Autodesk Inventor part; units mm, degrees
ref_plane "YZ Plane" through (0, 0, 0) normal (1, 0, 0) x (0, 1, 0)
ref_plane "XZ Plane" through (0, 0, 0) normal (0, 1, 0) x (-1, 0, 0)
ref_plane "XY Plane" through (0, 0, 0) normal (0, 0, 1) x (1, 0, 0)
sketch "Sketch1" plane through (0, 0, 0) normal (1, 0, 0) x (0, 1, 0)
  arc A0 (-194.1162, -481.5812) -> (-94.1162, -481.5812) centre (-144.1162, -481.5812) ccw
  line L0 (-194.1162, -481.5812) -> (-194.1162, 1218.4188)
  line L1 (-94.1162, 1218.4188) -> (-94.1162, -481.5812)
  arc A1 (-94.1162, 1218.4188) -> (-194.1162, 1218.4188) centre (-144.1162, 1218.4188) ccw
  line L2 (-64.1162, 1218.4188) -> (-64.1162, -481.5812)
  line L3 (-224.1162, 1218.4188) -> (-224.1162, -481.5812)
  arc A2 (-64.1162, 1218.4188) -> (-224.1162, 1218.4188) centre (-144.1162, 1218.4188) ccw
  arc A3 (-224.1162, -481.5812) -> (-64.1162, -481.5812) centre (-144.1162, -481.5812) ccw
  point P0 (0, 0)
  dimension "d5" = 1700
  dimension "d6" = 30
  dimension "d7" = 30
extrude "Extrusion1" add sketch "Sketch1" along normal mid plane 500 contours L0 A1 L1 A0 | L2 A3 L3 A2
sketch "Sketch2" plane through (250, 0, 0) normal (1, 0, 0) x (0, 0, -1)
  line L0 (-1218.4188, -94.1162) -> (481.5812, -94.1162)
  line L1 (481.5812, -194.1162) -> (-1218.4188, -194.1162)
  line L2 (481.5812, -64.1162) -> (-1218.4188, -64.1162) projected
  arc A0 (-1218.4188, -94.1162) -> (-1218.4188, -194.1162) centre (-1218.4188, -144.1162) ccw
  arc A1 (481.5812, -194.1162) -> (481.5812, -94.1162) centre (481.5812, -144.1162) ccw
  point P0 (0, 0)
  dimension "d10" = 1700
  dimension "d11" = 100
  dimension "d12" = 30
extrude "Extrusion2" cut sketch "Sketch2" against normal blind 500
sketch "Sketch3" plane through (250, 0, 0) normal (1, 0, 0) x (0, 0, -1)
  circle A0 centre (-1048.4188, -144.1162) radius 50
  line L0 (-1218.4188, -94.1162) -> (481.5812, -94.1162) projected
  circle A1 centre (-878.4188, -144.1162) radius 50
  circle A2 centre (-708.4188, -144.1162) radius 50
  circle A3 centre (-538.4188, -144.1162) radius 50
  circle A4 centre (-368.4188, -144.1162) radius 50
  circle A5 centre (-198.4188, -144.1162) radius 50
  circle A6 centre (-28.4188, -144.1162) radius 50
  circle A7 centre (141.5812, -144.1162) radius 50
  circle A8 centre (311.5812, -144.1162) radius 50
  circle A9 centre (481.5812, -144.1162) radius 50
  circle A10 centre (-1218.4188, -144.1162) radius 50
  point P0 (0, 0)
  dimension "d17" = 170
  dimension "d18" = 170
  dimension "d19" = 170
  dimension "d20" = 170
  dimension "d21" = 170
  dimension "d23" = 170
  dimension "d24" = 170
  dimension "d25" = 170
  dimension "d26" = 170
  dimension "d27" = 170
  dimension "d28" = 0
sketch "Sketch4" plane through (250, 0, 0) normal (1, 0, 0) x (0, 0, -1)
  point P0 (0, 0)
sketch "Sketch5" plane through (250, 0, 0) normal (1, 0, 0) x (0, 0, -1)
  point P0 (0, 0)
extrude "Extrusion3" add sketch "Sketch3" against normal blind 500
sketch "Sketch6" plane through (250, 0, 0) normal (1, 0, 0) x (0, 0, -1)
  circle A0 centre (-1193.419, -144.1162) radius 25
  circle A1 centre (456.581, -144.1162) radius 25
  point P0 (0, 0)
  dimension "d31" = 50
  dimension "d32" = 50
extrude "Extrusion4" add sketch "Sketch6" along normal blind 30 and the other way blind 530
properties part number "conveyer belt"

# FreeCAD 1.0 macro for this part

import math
import FreeCAD as App
import Part
import Sketcher
Q = App.Units.Quantity

doc = App.newDocument("Part")
body = doc.addObject("PartDesign::Body", "Body")
body.AllowCompound = True

# Sketch on YZ plane
sketch1 = body.newObject("Sketcher::SketchObject", "Sketch")
sketch1.AttachmentSupport = (doc.getObject("YZ_Plane"), [""])
sketch1.MapMode = "FlatFace"
sketch1.addGeometry(Part.LineSegment(App.Vector(-64.1162, -481.5812, 0), App.Vector(-64.1162, 1218.4188, 0)), False)
sketch1.addGeometry(Part.ArcOfCircle(Part.Circle(App.Vector(-144.1162, 1218.4188, 0), App.Vector(0, 0, 1), 80), math.radians(0), math.radians(180)), False)
sketch1.addGeometry(Part.LineSegment(App.Vector(-224.1162, 1218.4188, 0), App.Vector(-224.1162, -481.5812, 0)), False)
sketch1.addGeometry(Part.ArcOfCircle(Part.Circle(App.Vector(-144.1162, -481.5812, 0), App.Vector(0, 0, 1), 80), math.radians(180), math.radians(360)), False)
sketch1.addConstraint(Sketcher.Constraint("Tangent", 0, 2, 1, 1))
sketch1.addConstraint(Sketcher.Constraint("Tangent", 1, 2, 2, 1))
sketch1.addConstraint(Sketcher.Constraint("Tangent", 2, 2, 3, 1))
sketch1.addConstraint(Sketcher.Constraint("Tangent", 3, 2, 0, 1))
sketch1.addConstraint(Sketcher.Constraint("Vertical", 0))
sketch1.addConstraint(Sketcher.Constraint("Vertical", 2))
sketch1.addConstraint(Sketcher.Constraint("DistanceY", 0, 1, 0, 2, Q("1700 mm")))
sketch1.addConstraint(Sketcher.Constraint("Radius", 1, Q("80 mm")))
sketch1.addConstraint(Sketcher.Constraint("DistanceX", 1, 3, -1, 1, Q("144.1162 mm")))
sketch1.addConstraint(Sketcher.Constraint("DistanceY", -1, 1, 1, 3, Q("1218.4188 mm")))
pad1 = body.newObject("PartDesign::Pad", "Pad")
pad1.Profile = sketch1
pad1.Length = 500
pad1.Midplane = True

# Sketch on YZ plane
sketch2 = body.newObject("Sketcher::SketchObject", "Sketch001")
sketch2.AttachmentSupport = (doc.getObject("YZ_Plane"), [""])
sketch2.MapMode = "FlatFace"
sketch2.AttachmentOffset = App.Placement(App.Vector(0, 0, 250), App.Rotation())
sketch2.addGeometry(Part.LineSegment(App.Vector(-94.1162, -481.5812, 0), App.Vector(-94.1162, 1218.4188, 0)), False)
sketch2.addGeometry(Part.ArcOfCircle(Part.Circle(App.Vector(-144.1162, 1218.4188, 0), App.Vector(0, 0, 1), 50), math.radians(0), math.radians(180)), False)
sketch2.addGeometry(Part.LineSegment(App.Vector(-194.1162, 1218.4188, 0), App.Vector(-194.1162, -481.5812, 0)), False)
sketch2.addGeometry(Part.ArcOfCircle(Part.Circle(App.Vector(-144.1162, -481.5812, 0), App.Vector(0, 0, 1), 50), math.radians(180), math.radians(360)), False)
sketch2.addConstraint(Sketcher.Constraint("Tangent", 0, 2, 1, 1))
sketch2.addConstraint(Sketcher.Constraint("Tangent", 1, 2, 2, 1))
sketch2.addConstraint(Sketcher.Constraint("Tangent", 2, 2, 3, 1))
sketch2.addConstraint(Sketcher.Constraint("Tangent", 3, 2, 0, 1))
sketch2.addConstraint(Sketcher.Constraint("Vertical", 0))
sketch2.addConstraint(Sketcher.Constraint("Vertical", 2))
sketch2.addConstraint(Sketcher.Constraint("Radius", 1, Q("50 mm")))
sketch2.addConstraint(Sketcher.Constraint("DistanceY", 0, 1, 0, 2, Q("1700 mm")))
sketch2.addConstraint(Sketcher.Constraint("DistanceX", 1, 3, -1, 1, Q("144.1162 mm")))
sketch2.addConstraint(Sketcher.Constraint("DistanceY", -1, 1, 1, 3, Q("1218.4188 mm")))
pocket1 = body.newObject("PartDesign::Pocket", "Pocket")
pocket1.Profile = sketch2
pocket1.Length = 500

# Sketch on YZ plane
sketch3 = body.newObject("Sketcher::SketchObject", "Sketch002")
sketch3.AttachmentSupport = (doc.getObject("YZ_Plane"), [""])
sketch3.MapMode = "FlatFace"
sketch3.AttachmentOffset = App.Placement(App.Vector(0, 0, 250), App.Rotation())
sketch3.addGeometry(Part.Circle(App.Vector(-144.1162, 1048.4188, 0), App.Vector(0, 0, 1), 50), False)
sketch3.addGeometry(Part.Circle(App.Vector(-144.1162, 1218.4188, 0), App.Vector(0, 0, 1), 50), False)
sketch3.addGeometry(Part.Circle(App.Vector(-144.1162, -481.5812, 0), App.Vector(0, 0, 1), 50), False)
sketch3.addGeometry(Part.Circle(App.Vector(-144.1162, -311.5812, 0), App.Vector(0, 0, 1), 50), False)
sketch3.addGeometry(Part.Circle(App.Vector(-144.1162, -141.5812, 0), App.Vector(0, 0, 1), 50), False)
sketch3.addGeometry(Part.Circle(App.Vector(-144.1162, 28.4188, 0), App.Vector(0, 0, 1), 50), False)
sketch3.addGeometry(Part.Circle(App.Vector(-144.1162, 198.4188, 0), App.Vector(0, 0, 1), 50), False)
sketch3.addGeometry(Part.Circle(App.Vector(-144.1162, 368.4188, 0), App.Vector(0, 0, 1), 50), False)
sketch3.addGeometry(Part.Circle(App.Vector(-144.1162, 538.4188, 0), App.Vector(0, 0, 1), 50), False)
sketch3.addGeometry(Part.Circle(App.Vector(-144.1162, 708.4188, 0), App.Vector(0, 0, 1), 50), False)
sketch3.addGeometry(Part.Circle(App.Vector(-144.1162, 878.4188, 0), App.Vector(0, 0, 1), 50), False)
sketch3.addConstraint(Sketcher.Constraint("Equal", 0, 1))
sketch3.addConstraint(Sketcher.Constraint("Equal", 1, 2))
sketch3.addConstraint(Sketcher.Constraint("Equal", 2, 3))
sketch3.addConstraint(Sketcher.Constraint("Equal", 3, 4))
sketch3.addConstraint(Sketcher.Constraint("Equal", 4, 5))
sketch3.addConstraint(Sketcher.Constraint("Equal", 5, 6))
sketch3.addConstraint(Sketcher.Constraint("Equal", 6, 7))
sketch3.addConstraint(Sketcher.Constraint("Equal", 7, 8))
sketch3.addConstraint(Sketcher.Constraint("Equal", 8, 9))
sketch3.addConstraint(Sketcher.Constraint("Equal", 9, 10))
sketch3.addConstraint(Sketcher.Constraint("Vertical", 0, 3, 1, 3))
sketch3.addConstraint(Sketcher.Constraint("Vertical", 1, 3, 2, 3))
sketch3.addConstraint(Sketcher.Constraint("Vertical", 2, 3, 3, 3))
sketch3.addConstraint(Sketcher.Constraint("Vertical", 3, 3, 4, 3))
sketch3.addConstraint(Sketcher.Constraint("Vertical", 4, 3, 5, 3))
sketch3.addConstraint(Sketcher.Constraint("Vertical", 5, 3, 6, 3))
sketch3.addConstraint(Sketcher.Constraint("Vertical", 6, 3, 7, 3))
sketch3.addConstraint(Sketcher.Constraint("Vertical", 7, 3, 8, 3))
sketch3.addConstraint(Sketcher.Constraint("Vertical", 8, 3, 9, 3))
sketch3.addConstraint(Sketcher.Constraint("Vertical", 9, 3, 10, 3))
sketch3.addConstraint(Sketcher.Constraint("Diameter", 0, Q("100 mm")))
sketch3.addConstraint(Sketcher.Constraint("DistanceY", 0, 3, 1, 3, Q("170 mm")))
sketch3.addConstraint(Sketcher.Constraint("DistanceY", 2, 3, 3, 3, Q("170 mm")))
sketch3.addConstraint(Sketcher.Constraint("DistanceY", 3, 3, 4, 3, Q("170 mm")))
sketch3.addConstraint(Sketcher.Constraint("DistanceY", 4, 3, 5, 3, Q("170 mm")))
sketch3.addConstraint(Sketcher.Constraint("DistanceY", 5, 3, 6, 3, Q("170 mm")))
sketch3.addConstraint(Sketcher.Constraint("DistanceY", 6, 3, 7, 3, Q("170 mm")))
sketch3.addConstraint(Sketcher.Constraint("DistanceY", 7, 3, 8, 3, Q("170 mm")))
sketch3.addConstraint(Sketcher.Constraint("DistanceY", 8, 3, 9, 3, Q("170 mm")))
sketch3.addConstraint(Sketcher.Constraint("DistanceY", 10, 3, 0, 3, Q("170 mm")))
sketch3.addConstraint(Sketcher.Constraint("DistanceY", 9, 3, 10, 3, Q("170 mm")))
sketch3.addConstraint(Sketcher.Constraint("DistanceX", 0, 3, -1, 1, Q("144.1162 mm")))
sketch3.addConstraint(Sketcher.Constraint("DistanceY", -1, 1, 0, 3, Q("1048.4188 mm")))
pad2 = body.newObject("PartDesign::Pad", "Pad001")
pad2.Profile = sketch3
pad2.Length = 500
pad2.Reversed = True

# Sketch on YZ plane
sketch4 = body.newObject("Sketcher::SketchObject", "Sketch003")
sketch4.AttachmentSupport = (doc.getObject("YZ_Plane"), [""])
sketch4.MapMode = "FlatFace"
sketch4.AttachmentOffset = App.Placement(App.Vector(0, 0, 250), App.Rotation())
sketch4.addGeometry(Part.Circle(App.Vector(-144.1162, 1193.419, 0), App.Vector(0, 0, 1), 25), False)
sketch4.addGeometry(Part.Circle(App.Vector(-144.1162, -456.581, 0), App.Vector(0, 0, 1), 25), False)
sketch4.addConstraint(Sketcher.Constraint("Equal", 0, 1))
sketch4.addConstraint(Sketcher.Constraint("Vertical", 0, 3, 1, 3))
sketch4.addConstraint(Sketcher.Constraint("Diameter", 0, Q("50 mm")))
sketch4.addConstraint(Sketcher.Constraint("DistanceY", 1, 3, 0, 3, Q("1650 mm")))
sketch4.addConstraint(Sketcher.Constraint("DistanceY", -1, 1, 0, 3, Q("1193.419 mm")))
sketch4.addConstraint(Sketcher.Constraint("DistanceX", 0, 3, -1, 1, Q("144.1162 mm")))
pad3 = body.newObject("PartDesign::Pad", "Pad002")
pad3.Profile = sketch4
pad3.Type = "TwoLengths"
pad3.Length = 30
pad3.Length2 = 530

doc.recompute()
